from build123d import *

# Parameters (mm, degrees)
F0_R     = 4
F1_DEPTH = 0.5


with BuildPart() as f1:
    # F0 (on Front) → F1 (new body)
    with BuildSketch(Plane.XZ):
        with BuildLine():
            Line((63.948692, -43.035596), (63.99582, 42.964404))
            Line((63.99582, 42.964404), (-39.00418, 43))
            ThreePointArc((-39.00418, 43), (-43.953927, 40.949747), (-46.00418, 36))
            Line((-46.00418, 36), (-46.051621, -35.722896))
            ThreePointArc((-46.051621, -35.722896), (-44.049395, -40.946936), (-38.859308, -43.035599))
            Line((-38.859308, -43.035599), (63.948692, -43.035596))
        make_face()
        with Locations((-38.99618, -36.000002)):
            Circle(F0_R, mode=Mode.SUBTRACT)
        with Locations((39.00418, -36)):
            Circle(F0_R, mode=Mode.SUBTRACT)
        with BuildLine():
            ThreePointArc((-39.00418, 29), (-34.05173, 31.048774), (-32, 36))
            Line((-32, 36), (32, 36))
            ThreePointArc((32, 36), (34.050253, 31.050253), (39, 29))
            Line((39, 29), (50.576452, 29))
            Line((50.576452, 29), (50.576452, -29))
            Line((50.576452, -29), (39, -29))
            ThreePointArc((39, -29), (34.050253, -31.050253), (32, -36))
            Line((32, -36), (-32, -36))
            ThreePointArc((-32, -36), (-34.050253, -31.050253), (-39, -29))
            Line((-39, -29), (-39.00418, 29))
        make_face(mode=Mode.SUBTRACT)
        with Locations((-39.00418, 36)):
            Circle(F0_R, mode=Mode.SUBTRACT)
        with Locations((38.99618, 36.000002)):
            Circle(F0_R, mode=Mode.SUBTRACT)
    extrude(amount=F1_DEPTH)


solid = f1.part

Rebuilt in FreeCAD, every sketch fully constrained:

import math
import FreeCAD as App
import Part
import Sketcher
from FreeCAD import Vector
Q = App.Units.Quantity

doc = App.newDocument("Part")
params = doc.addObject("Spreadsheet::Sheet", "Params")
for row, (alias, value) in enumerate([
    ("sketch1_diameter", "8 mm"),
    ("sketch1_diameter2", "8 mm"),
    ("sketch1_diameter3", "8 mm"),
    ("sketch1_diameter4", "8 mm"),
    ("sketch1_radius", "7.000002 mm"),
    ("pad1_length", "0.5 mm"),
], start=1):
    params.set(f"A{row}", alias)
    params.set(f"B{row}", "=" + value)
    params.setAlias(f"B{row}", alias)

body = doc.addObject("PartDesign::Body", "Body")

# Sketch on XZ plane
sketch1 = body.newObject("Sketcher::SketchObject", "Sketch")
sketch1.AttachmentSupport = (doc.getObject("XZ_Plane"), [""])
sketch1.MapMode = "FlatFace"
sketch1.addGeometry([
    Part.LineSegment(Vector(63.948692, -43.035596, 0), Vector(63.99582, 42.964404, 0)),  # 0
    Part.LineSegment(Vector(63.99582, 42.964404, 0), Vector(-39.00418, 43, 0)),  # 1
    Part.ArcOfCircle(Part.Circle(Vector(-39.004178, 35.999998, 0), Vector(0, 0, 1), 7.000002), math.radians(90.000013), math.radians(179.999987)),  # 2
    Part.LineSegment(Vector(-46.00418, 36, 0), Vector(-46.051621, -35.722896, 0)),  # 3
    Part.ArcOfCircle(Part.Circle(Vector(-39.058737, -36.03844, 0), Vector(0, 0, 1), 7), math.radians(177.416359), math.radians(271.632566)),  # 4
    Part.LineSegment(Vector(-38.859308, -43.035599, 0), Vector(63.948692, -43.035596, 0)),  # 5
    Part.Circle(Vector(-38.99618, -36.000002, 0), Vector(0, 0, 1), 4),  # 6
    Part.Circle(Vector(39.00418, -36, 0), Vector(0, 0, 1), 4),  # 7
    Part.Circle(Vector(-39.00418, 36, 0), Vector(0, 0, 1), 4),  # 8
    Part.LineSegment(Vector(-39, -29, 0), Vector(-39.00418, 29, 0)),  # 9
    Part.ArcOfCircle(Part.Circle(Vector(-39, 35.999998, 0), Vector(0, 0, 1), 7), math.radians(-90.034217), math.radians(0.000014)),  # 10
    Part.LineSegment(Vector(-32, 36, 0), Vector(32, 36, 0)),  # 11
    Part.ArcOfCircle(Part.Circle(Vector(39.000002, 36.000002, 0), Vector(0, 0, 1), 7.000002), math.radians(-179.999987), math.radians(-90.000013)),  # 12
    Part.LineSegment(Vector(39, 29, 0), Vector(50.576452, 29, 0)),  # 13
    Part.LineSegment(Vector(50.576452, 29, 0), Vector(50.576452, -29, 0)),  # 14
    Part.LineSegment(Vector(50.576452, -29, 0), Vector(39, -29, 0)),  # 15
    Part.ArcOfCircle(Part.Circle(Vector(39.000002, -36.000002, 0), Vector(0, 0, 1), 7.000002), math.radians(90.000013), math.radians(179.999987)),  # 16
    Part.LineSegment(Vector(32, -36, 0), Vector(-32, -36, 0)),  # 17
    Part.ArcOfCircle(Part.Circle(Vector(-39.000002, -36.000002, 0), Vector(0, 0, 1), 7.000002), math.radians(0.000013), math.radians(89.999987)),  # 18
    Part.Circle(Vector(38.99618, 36.000002, 0), Vector(0, 0, 1), 4),  # 19
], False)
sketch1.addConstraint([
    Sketcher.Constraint("Coincident", 0, 2, 1, 1),
    Sketcher.Constraint("Coincident", 1, 2, 2, 1),
    Sketcher.Constraint("Coincident", 2, 2, 3, 1),
    Sketcher.Constraint("Coincident", 3, 2, 4, 1),
    Sketcher.Constraint("Coincident", 4, 2, 5, 1),
    Sketcher.Constraint("Coincident", 5, 2, 0, 1),
    Sketcher.Constraint("Coincident", 9, 2, 10, 1),
    Sketcher.Constraint("Coincident", 10, 2, 11, 1),
    Sketcher.Constraint("Coincident", 11, 2, 12, 1),
    Sketcher.Constraint("Coincident", 12, 2, 13, 1),
    Sketcher.Constraint("Coincident", 13, 2, 14, 1),
    Sketcher.Constraint("Coincident", 14, 2, 15, 1),
    Sketcher.Constraint("Coincident", 15, 2, 16, 1),
    Sketcher.Constraint("Coincident", 16, 2, 17, 1),
    Sketcher.Constraint("Coincident", 17, 2, 18, 1),
    Sketcher.Constraint("Coincident", 18, 2, 9, 1),
    Sketcher.Constraint("Horizontal", 11),
    Sketcher.Constraint("Horizontal", 13),
    Sketcher.Constraint("Vertical", 14),
    Sketcher.Constraint("Horizontal", 15),
    Sketcher.Constraint("Horizontal", 17),
    Sketcher.Constraint("Coincident", 8, 3, 2, 3),
    Sketcher.Constraint("Diameter", 6, Q("8 mm")),
    Sketcher.Constraint("Diameter", 7, Q("8 mm")),
    Sketcher.Constraint("Diameter", 8, Q("8 mm")),
    Sketcher.Constraint("Diameter", 19, Q("8 mm")),
    Sketcher.Constraint("Radius", 2, Q("7.000002 mm")),
    Sketcher.Constraint("Radius", 4, Q("7 mm")),
    Sketcher.Constraint("Radius", 10, Q("7 mm")),
    Sketcher.Constraint("Radius", 12, Q("7.000002 mm")),
    Sketcher.Constraint("Radius", 16, Q("7.000002 mm")),
    Sketcher.Constraint("Radius", 18, Q("7.000002 mm")),
    Sketcher.Constraint("DistanceX", 11, 1, 11, 2, Q("64 mm")),
    Sketcher.Constraint("DistanceX", 17, 2, 17, 1, Q("64 mm")),
    Sketcher.Constraint("DistanceY", 14, 2, 14, 1, Q("58 mm")),
    Sketcher.Constraint("Distance", 9, Q("58 mm")),
    Sketcher.Constraint("DistanceY", -1, 1, 2, 3, Q("35.999998 mm")),
    Sketcher.Constraint("DistanceY", 7, 3, -1, 1, Q("36 mm")),
    Sketcher.Constraint("DistanceX", 10, 3, -1, 1, Q("39 mm")),
    Sketcher.Constraint("DistanceY", -1, 1, 10, 3, Q("35.999998 mm")),
    Sketcher.Constraint("DistanceY", -1, 1, 12, 3, Q("36.000002 mm")),
    Sketcher.Constraint("DistanceX", -1, 1, 16, 3, Q("39.000002 mm")),
    Sketcher.Constraint("DistanceY", -1, 1, 2, 2, Q("36 mm")),
    Sketcher.Constraint("DistanceY", -1, 1, 10, 2, Q("36 mm")),
    Sketcher.Constraint("DistanceX", -1, 1, 12, 2, Q("39 mm")),
    Sketcher.Constraint("DistanceX", -1, 1, 15, 2, Q("39 mm")),
    Sketcher.Constraint("DistanceY", 16, 2, -1, 1, Q("36 mm")),
    Sketcher.Constraint("DistanceX", 18, 2, -1, 1, Q("39 mm")),
    Sketcher.Constraint("DistanceY", 6, 3, 2, 3, Q("72 mm")),
    Sketcher.Constraint("DistanceY", 7, 3, 19, 3, Q("72.000002 mm")),
    Sketcher.Constraint("DistanceX", 2, 2, 1, 2, Q("7 mm")),
    Sketcher.Constraint("DistanceY", 5, 2, 0, 2, Q("86 mm")),
    Sketcher.Constraint("DistanceX", 2, 2, 9, 2, Q("7 mm")),
    Sketcher.Constraint("Distance", 5, Q("102.808 mm")),
    Sketcher.Constraint("DistanceX", 2, 3, 6, 3, Q("0.007998 mm")),
    Sketcher.Constraint("DistanceX", 19, 3, 7, 3, Q("0.008 mm")),
    Sketcher.Constraint("DistanceY", 4, 2, -1, 1, Q("43.035599 mm")),
    Sketcher.Constraint("DistanceY", 19, 3, 0, 2, Q("6.964402 mm")),
    Sketcher.Constraint("Distance", 3, Q("71.722912 mm")),
    Sketcher.Constraint("DistanceX", 13, 1, 13, 2, Q("11.576452 mm")),
    Sketcher.Constraint("DistanceX", 2, 3, -1, 1, Q("39.004178 mm")),
    Sketcher.Constraint("DistanceY", 4, 3, -1, 1, Q("36.03844 mm")),
    Sketcher.Constraint("DistanceX", -1, 1, 7, 3, Q("39.00418 mm")),
    Sketcher.Constraint("DistanceX", -1, 1, 0, 2, Q("63.99582 mm")),
    Sketcher.Constraint("DistanceX", 3, 2, -1, 1, Q("46.051621 mm")),
])
sketch1.setExpression("Constraints[22]", "Params.sketch1_diameter")
sketch1.setExpression("Constraints[23]", "Params.sketch1_diameter2")
sketch1.setExpression("Constraints[24]", "Params.sketch1_diameter3")
sketch1.setExpression("Constraints[25]", "Params.sketch1_diameter4")
sketch1.setExpression("Constraints[26]", "Params.sketch1_radius")
pad1 = body.newObject("PartDesign::Pad", "Pad")
pad1.Profile = sketch1
pad1.setExpression("Length", "Params.pad1_length")

doc.recompute()
